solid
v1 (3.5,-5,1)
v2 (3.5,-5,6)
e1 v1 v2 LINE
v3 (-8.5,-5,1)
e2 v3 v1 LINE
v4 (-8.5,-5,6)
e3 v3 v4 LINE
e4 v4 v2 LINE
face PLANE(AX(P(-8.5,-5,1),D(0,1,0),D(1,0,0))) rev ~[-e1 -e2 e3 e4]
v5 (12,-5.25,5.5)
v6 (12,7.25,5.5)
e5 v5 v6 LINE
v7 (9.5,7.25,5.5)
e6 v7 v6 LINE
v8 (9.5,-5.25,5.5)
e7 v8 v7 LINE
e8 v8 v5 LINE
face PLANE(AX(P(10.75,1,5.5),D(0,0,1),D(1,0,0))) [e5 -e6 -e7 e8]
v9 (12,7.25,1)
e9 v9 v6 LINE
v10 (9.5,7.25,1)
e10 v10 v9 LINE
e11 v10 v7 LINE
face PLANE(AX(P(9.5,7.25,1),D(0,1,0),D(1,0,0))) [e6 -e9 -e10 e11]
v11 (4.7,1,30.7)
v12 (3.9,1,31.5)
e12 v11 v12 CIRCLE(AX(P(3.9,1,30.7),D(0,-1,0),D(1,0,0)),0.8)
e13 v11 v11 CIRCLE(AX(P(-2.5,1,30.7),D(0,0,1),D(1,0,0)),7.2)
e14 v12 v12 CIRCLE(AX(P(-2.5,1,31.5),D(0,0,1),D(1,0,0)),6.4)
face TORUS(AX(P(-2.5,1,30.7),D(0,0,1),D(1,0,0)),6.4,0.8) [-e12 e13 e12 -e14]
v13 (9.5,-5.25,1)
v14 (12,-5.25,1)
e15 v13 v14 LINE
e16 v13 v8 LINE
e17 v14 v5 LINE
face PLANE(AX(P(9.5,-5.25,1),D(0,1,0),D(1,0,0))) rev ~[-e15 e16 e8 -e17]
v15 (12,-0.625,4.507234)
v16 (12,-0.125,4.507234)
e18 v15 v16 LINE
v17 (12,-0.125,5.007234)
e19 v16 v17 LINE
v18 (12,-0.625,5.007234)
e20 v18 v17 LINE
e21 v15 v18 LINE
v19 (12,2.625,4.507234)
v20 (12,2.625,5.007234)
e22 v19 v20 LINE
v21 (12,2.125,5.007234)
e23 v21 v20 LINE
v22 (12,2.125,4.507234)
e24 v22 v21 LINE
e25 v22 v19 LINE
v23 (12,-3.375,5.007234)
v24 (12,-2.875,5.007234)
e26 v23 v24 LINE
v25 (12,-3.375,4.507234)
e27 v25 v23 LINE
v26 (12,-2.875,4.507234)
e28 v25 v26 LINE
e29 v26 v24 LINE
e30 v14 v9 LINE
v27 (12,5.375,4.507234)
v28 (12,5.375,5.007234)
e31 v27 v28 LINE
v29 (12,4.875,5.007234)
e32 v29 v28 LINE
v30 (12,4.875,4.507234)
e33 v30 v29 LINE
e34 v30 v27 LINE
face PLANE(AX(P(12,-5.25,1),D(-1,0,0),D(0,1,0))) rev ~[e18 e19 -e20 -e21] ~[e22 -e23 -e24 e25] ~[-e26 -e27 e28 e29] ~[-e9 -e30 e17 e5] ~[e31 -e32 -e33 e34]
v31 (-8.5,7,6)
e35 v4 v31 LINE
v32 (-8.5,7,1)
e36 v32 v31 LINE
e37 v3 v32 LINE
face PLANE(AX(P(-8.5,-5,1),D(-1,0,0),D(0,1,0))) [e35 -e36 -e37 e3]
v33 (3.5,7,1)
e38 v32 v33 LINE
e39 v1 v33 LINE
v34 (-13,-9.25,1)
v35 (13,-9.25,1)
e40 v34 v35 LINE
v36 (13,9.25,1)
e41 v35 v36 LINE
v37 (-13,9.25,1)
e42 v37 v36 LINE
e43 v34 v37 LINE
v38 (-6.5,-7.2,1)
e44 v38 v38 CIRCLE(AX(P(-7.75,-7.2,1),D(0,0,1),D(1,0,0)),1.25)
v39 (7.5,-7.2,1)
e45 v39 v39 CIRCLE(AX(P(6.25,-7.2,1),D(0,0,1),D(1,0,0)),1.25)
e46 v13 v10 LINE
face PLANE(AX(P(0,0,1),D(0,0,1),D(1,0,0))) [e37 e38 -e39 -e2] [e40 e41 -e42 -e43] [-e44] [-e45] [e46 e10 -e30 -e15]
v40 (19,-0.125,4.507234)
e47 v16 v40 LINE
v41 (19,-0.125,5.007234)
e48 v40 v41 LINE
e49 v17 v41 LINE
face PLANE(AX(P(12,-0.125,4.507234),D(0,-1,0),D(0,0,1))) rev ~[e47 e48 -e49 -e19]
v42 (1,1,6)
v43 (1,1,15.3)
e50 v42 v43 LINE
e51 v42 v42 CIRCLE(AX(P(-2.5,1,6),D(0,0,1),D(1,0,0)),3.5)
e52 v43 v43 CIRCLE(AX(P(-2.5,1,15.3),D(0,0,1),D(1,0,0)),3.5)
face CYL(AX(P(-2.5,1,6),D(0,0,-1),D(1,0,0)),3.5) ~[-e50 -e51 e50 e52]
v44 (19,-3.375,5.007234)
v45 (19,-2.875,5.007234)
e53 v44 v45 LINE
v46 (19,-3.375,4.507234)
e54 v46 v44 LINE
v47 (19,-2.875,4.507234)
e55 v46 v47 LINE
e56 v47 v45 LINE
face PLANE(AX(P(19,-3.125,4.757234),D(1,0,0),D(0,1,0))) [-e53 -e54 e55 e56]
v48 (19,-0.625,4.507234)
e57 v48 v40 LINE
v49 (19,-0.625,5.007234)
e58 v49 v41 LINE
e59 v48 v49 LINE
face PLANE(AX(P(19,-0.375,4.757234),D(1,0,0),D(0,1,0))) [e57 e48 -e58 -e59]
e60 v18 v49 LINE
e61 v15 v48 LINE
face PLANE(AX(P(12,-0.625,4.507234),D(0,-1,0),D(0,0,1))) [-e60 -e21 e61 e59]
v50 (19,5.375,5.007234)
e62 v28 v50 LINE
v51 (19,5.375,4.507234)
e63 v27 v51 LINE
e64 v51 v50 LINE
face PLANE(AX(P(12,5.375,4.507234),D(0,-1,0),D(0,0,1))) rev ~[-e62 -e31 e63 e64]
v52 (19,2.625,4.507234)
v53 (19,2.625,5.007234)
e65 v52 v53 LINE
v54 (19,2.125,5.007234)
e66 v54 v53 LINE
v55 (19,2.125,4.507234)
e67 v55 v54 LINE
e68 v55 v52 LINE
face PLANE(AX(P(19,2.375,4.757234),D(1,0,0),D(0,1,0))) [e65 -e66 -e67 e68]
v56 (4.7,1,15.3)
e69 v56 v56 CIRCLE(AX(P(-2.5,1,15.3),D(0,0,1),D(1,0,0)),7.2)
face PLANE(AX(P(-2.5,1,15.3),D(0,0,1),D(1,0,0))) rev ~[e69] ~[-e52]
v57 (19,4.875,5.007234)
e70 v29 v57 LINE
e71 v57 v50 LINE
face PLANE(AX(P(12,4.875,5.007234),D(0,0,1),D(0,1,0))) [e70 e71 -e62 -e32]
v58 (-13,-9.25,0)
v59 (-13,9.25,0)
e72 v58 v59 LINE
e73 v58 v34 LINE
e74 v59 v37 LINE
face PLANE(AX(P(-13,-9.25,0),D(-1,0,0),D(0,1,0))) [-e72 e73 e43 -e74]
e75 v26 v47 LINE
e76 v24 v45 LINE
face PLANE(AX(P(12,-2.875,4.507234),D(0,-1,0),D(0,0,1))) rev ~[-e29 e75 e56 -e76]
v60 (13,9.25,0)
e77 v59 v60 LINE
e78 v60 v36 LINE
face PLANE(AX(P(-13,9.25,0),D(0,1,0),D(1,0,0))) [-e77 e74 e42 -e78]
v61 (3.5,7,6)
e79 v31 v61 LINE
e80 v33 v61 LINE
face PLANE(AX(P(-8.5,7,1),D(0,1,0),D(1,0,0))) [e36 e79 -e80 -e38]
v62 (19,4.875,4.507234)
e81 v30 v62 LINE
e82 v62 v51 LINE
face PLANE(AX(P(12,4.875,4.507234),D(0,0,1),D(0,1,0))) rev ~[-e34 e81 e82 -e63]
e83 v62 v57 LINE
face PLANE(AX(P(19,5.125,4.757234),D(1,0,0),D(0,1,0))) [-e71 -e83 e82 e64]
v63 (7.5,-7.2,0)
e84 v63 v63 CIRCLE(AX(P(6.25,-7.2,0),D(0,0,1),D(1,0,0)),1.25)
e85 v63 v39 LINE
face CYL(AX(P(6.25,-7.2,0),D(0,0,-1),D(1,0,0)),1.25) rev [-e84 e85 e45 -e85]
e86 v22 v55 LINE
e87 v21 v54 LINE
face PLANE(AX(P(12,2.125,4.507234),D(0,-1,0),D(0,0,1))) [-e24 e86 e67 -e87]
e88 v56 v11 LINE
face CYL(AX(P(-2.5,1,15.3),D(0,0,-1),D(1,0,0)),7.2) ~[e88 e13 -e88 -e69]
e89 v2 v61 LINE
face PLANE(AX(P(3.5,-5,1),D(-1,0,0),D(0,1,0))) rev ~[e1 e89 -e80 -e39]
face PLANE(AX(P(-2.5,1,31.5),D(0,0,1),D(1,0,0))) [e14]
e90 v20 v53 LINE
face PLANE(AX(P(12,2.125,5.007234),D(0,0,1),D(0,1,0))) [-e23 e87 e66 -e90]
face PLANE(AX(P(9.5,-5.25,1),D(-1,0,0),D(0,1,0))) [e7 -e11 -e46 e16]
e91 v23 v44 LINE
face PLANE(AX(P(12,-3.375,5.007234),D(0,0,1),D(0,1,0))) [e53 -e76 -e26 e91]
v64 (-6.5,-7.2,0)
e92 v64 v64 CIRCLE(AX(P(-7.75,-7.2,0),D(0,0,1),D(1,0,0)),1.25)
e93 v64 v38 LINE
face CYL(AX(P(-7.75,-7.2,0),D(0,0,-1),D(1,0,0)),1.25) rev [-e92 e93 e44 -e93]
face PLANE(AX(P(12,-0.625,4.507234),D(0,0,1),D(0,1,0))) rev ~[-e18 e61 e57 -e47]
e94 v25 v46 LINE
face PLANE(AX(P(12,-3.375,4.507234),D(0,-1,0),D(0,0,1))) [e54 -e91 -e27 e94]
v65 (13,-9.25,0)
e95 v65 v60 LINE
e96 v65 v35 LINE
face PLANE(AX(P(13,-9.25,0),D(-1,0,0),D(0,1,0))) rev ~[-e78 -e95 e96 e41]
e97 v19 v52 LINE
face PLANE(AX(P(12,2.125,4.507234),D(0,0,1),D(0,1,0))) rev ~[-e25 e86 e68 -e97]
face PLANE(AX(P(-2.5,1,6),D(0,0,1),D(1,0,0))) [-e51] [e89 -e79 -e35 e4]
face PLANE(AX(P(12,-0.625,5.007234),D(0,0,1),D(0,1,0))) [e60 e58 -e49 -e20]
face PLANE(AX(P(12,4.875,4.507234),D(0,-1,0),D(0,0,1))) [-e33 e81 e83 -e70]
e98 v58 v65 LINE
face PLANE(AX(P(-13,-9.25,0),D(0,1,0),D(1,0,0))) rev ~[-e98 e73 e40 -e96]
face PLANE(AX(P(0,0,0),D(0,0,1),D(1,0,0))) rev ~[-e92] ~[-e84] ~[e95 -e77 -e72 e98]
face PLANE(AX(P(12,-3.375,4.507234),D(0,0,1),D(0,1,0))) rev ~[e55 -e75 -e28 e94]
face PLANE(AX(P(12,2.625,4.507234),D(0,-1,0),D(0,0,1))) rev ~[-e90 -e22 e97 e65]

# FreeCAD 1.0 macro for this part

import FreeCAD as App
import Part
import Sketcher
Q = App.Units.Quantity


def edges_at(feature, points):
    """Names of the edges that pass closest to the given points."""
    edges = feature.Shape.Edges
    near = lambda p: min(range(len(edges)), key=lambda i: edges[i].distToShape(Part.Vertex(*p))[0])
    return sorted({f"Edge{near(p) + 1}" for p in points})


def add_polygon(sketch, points):
    """Adds a closed chain of lines whose ends are joined by coincident constraints."""
    first, n = sketch.GeometryCount, len(points)
    for a, b in zip(points, points[1:] + points[:1]):
        sketch.addGeometry(Part.LineSegment(App.Vector(*a, 0), App.Vector(*b, 0)), False)
    for i in range(n):
        sketch.addConstraint(Sketcher.Constraint("Coincident", first + i, 2, first + (i + 1) % n, 1))

doc = App.newDocument("Part")
body = doc.addObject("PartDesign::Body", "Body")

sketch1 = doc.addObject("Sketcher::SketchObject", "Sketch")
body.addObject(sketch1)
sketch1.AttachmentSupport = (doc.XY_Plane, [""])
sketch1.MapMode = "FlatFace"
add_polygon(sketch1, [(-13, 9.25), (-13, -9.25), (13, -9.25), (13, 9.25)])
sketch1.addGeometry(Part.Circle(App.Vector(-7.75, -7.2, 0), App.Vector(0, 0, 1), 1.25), False)
sketch1.addGeometry(Part.Circle(App.Vector(6.25, -7.2, 0), App.Vector(0, 0, 1), 1.25), False)
sketch1.addConstraint(Sketcher.Constraint("Vertical", 0))
sketch1.addConstraint(Sketcher.Constraint("Horizontal", 1))
sketch1.addConstraint(Sketcher.Constraint("Vertical", 2))
sketch1.addConstraint(Sketcher.Constraint("Horizontal", 3))
sketch1.addConstraint(Sketcher.Constraint("Equal", 4, 5))
sketch1.addConstraint(Sketcher.Constraint("Symmetric", 0, 2, 2, 2, -1, 1))
sketch1.addConstraint(Sketcher.Constraint("Horizontal", 4, 3, 5, 3))
sketch1.addConstraint(Sketcher.Constraint("Diameter", 4, Q("2.5 mm")))
sketch1.addConstraint(Sketcher.Constraint("DistanceX", 1, 1, 1, 2, Q("26 mm")))
sketch1.addConstraint(Sketcher.Constraint("DistanceY", 0, 2, 0, 1, Q("18.5 mm")))
sketch1.addConstraint(Sketcher.Constraint("DistanceX", 4, 3, 5, 3, Q("14 mm")))
sketch1.addConstraint(Sketcher.Constraint("DistanceY", 4, 3, -1, 1, Q("7.2 mm")))
sketch1.addConstraint(Sketcher.Constraint("DistanceX", 4, 3, -1, 1, Q("7.75 mm")))
pad1 = doc.addObject("PartDesign::Pad", "Pad")
body.addObject(pad1)
pad1.Profile = sketch1
pad1.Length = 1

sketch2 = doc.addObject("Sketcher::SketchObject", "Sketch001")
body.addObject(sketch2)
sketch2.AttachmentSupport = (doc.XY_Plane, [""])
sketch2.MapMode = "FlatFace"
sketch2.AttachmentOffset = App.Placement(App.Vector(0, 0, 1), App.Rotation())
add_polygon(sketch2, [(-8.5, 7), (-8.5, -5), (3.5, -5), (3.5, 7)])
sketch2.addConstraint(Sketcher.Constraint("Vertical", 0))
sketch2.addConstraint(Sketcher.Constraint("Horizontal", 1))
sketch2.addConstraint(Sketcher.Constraint("Vertical", 2))
sketch2.addConstraint(Sketcher.Constraint("Horizontal", 3))
sketch2.addConstraint(Sketcher.Constraint("Equal", 3, 0))
sketch2.addConstraint(Sketcher.Constraint("DistanceX", 1, 1, 1, 2, Q("12 mm")))
sketch2.addConstraint(Sketcher.Constraint("DistanceY", 0, 2, -1, 1, Q("5 mm")))
sketch2.addConstraint(Sketcher.Constraint("DistanceX", 0, 2, -1, 1, Q("8.5 mm")))
pad2 = doc.addObject("PartDesign::Pad", "Pad001")
body.addObject(pad2)
pad2.Profile = sketch2
pad2.Length = 5

sketch3 = doc.addObject("Sketcher::SketchObject", "Sketch002")
body.addObject(sketch3)
sketch3.AttachmentSupport = (doc.XY_Plane, [""])
sketch3.MapMode = "FlatFace"
sketch3.AttachmentOffset = App.Placement(App.Vector(0, 0, 6), App.Rotation())
sketch3.addGeometry(Part.Circle(App.Vector(-2.5, 1, 0), App.Vector(0, 0, 1), 3.5), False)
sketch3.addConstraint(Sketcher.Constraint("Diameter", 0, Q("7 mm")))
sketch3.addConstraint(Sketcher.Constraint("DistanceY", -1, 1, 0, 3, Q("1 mm")))
sketch3.addConstraint(Sketcher.Constraint("DistanceX", 0, 3, -1, 1, Q("2.5 mm")))
pad3 = doc.addObject("PartDesign::Pad", "Pad002")
body.addObject(pad3)
pad3.Profile = sketch3
pad3.Length = 9.3

sketch4 = doc.addObject("Sketcher::SketchObject", "Sketch003")
body.addObject(sketch4)
sketch4.AttachmentSupport = (doc.XY_Plane, [""])
sketch4.MapMode = "FlatFace"
sketch4.AttachmentOffset = App.Placement(App.Vector(0, 0, 15.3), App.Rotation())
sketch4.addGeometry(Part.Circle(App.Vector(-2.5, 1, 0), App.Vector(0, 0, 1), 7.2), False)
sketch4.addConstraint(Sketcher.Constraint("Diameter", 0, Q("14.4 mm")))
sketch4.addConstraint(Sketcher.Constraint("DistanceY", -1, 1, 0, 3, Q("1 mm")))
sketch4.addConstraint(Sketcher.Constraint("DistanceX", 0, 3, -1, 1, Q("2.5 mm")))
pad4 = doc.addObject("PartDesign::Pad", "Pad003")
body.addObject(pad4)
pad4.Profile = sketch4
pad4.Length = 16.2
doc.recompute()

fillet = doc.addObject("PartDesign::Fillet", "Fillet")
body.addObject(fillet)
fillet.Base = (pad4, edges_at(pad4, [(-9.7, 1, 31.5)]))
fillet.Radius = 0.8

sketch5 = doc.addObject("Sketcher::SketchObject", "Sketch004")
body.addObject(sketch5)
sketch5.AttachmentSupport = (doc.XY_Plane, [""])
sketch5.MapMode = "FlatFace"
sketch5.AttachmentOffset = App.Placement(App.Vector(0, 0, 1), App.Rotation())
add_polygon(sketch5, [(9.5, 7.25), (9.5, -5.25), (12, -5.25), (12, 7.25)])
sketch5.addConstraint(Sketcher.Constraint("Vertical", 0))
sketch5.addConstraint(Sketcher.Constraint("Horizontal", 1))
sketch5.addConstraint(Sketcher.Constraint("Vertical", 2))
sketch5.addConstraint(Sketcher.Constraint("Horizontal", 3))
sketch5.addConstraint(Sketcher.Constraint("DistanceX", 1, 1, 1, 2, Q("2.5 mm")))
sketch5.addConstraint(Sketcher.Constraint("DistanceY", 0, 2, 0, 1, Q("12.5 mm")))
sketch5.addConstraint(Sketcher.Constraint("DistanceX", -1, 1, 1, 2, Q("12 mm")))
sketch5.addConstraint(Sketcher.Constraint("DistanceY", 0, 2, -1, 1, Q("5.25 mm")))
pad5 = doc.addObject("PartDesign::Pad", "Pad004")
body.addObject(pad5)
pad5.Profile = sketch5
pad5.Length = 4.5

sketch6 = doc.addObject("Sketcher::SketchObject", "Sketch005")
body.addObject(sketch6)
sketch6.AttachmentSupport = (doc.YZ_Plane, [""])
sketch6.MapMode = "FlatFace"
sketch6.AttachmentOffset = App.Placement(App.Vector(0, 0, 12), App.Rotation())
add_polygon(sketch6, [(-3.375, 5.007234), (-3.375, 4.507234), (-2.875, 4.507234), (-2.875, 5.007234)])
add_polygon(sketch6, [(-0.625, 5.007234), (-0.625, 4.507234), (-0.125, 4.507234), (-0.125, 5.007234)])
add_polygon(sketch6, [(2.125, 5.007234), (2.125, 4.507234), (2.625, 4.507234), (2.625, 5.007234)])
add_polygon(sketch6, [(4.875, 5.007234), (4.875, 4.507234), (5.375, 4.507234), (5.375, 5.007234)])
sketch6.addConstraint(Sketcher.Constraint("Vertical", 0))
sketch6.addConstraint(Sketcher.Constraint("Horizontal", 1))
sketch6.addConstraint(Sketcher.Constraint("Vertical", 2))
sketch6.addConstraint(Sketcher.Constraint("Horizontal", 3))
sketch6.addConstraint(Sketcher.Constraint("Vertical", 4))
sketch6.addConstraint(Sketcher.Constraint("Horizontal", 5))
sketch6.addConstraint(Sketcher.Constraint("Vertical", 6))
sketch6.addConstraint(Sketcher.Constraint("Horizontal", 7))
sketch6.addConstraint(Sketcher.Constraint("Vertical", 8))
sketch6.addConstraint(Sketcher.Constraint("Horizontal", 9))
sketch6.addConstraint(Sketcher.Constraint("Vertical", 10))
sketch6.addConstraint(Sketcher.Constraint("Horizontal", 11))
sketch6.addConstraint(Sketcher.Constraint("Vertical", 12))
sketch6.addConstraint(Sketcher.Constraint("Horizontal", 13))
sketch6.addConstraint(Sketcher.Constraint("Vertical", 14))
sketch6.addConstraint(Sketcher.Constraint("Horizontal", 15))
sketch6.addConstraint(Sketcher.Constraint("Horizontal", 1, 2, 4, 2))
sketch6.addConstraint(Sketcher.Constraint("Horizontal", 3, 2, 6, 2))
sketch6.addConstraint(Sketcher.Constraint("Horizontal", 5, 2, 8, 2))
sketch6.addConstraint(Sketcher.Constraint("Horizontal", 7, 2, 10, 2))
sketch6.addConstraint(Sketcher.Constraint("Horizontal", 9, 2, 12, 2))
sketch6.addConstraint(Sketcher.Constraint("Horizontal", 11, 2, 14, 2))
sketch6.addConstraint(Sketcher.Constraint("Equal", 3, 5))
sketch6.addConstraint(Sketcher.Constraint("Equal", 7, 9))
sketch6.addConstraint(Sketcher.Constraint("Equal", 11, 13))
sketch6.addConstraint(Sketcher.Constraint("Equal", 15, 0))
sketch6.addConstraint(Sketcher.Constraint("DistanceX", 1, 1, 1, 2, Q("0.5 mm")))
sketch6.addConstraint(Sketcher.Constraint("DistanceX", 1, 2, 8, 2, Q("5 mm")))
sketch6.addConstraint(Sketcher.Constraint("DistanceX", 5, 2, 12, 2, Q("5 mm")))
sketch6.addConstraint(Sketcher.Constraint("DistanceX", 1, 2, 4, 2, Q("2.25 mm")))
sketch6.addConstraint(Sketcher.Constraint("DistanceX", 0, 2, -1, 1, Q("3.375 mm")))
sketch6.addConstraint(Sketcher.Constraint("DistanceY", -1, 1, 0, 2, Q("4.507234 mm")))
pad6 = doc.addObject("PartDesign::Pad", "Pad005")
body.addObject(pad6)
pad6.Profile = sketch6
pad6.Length = 7

doc.recompute()
